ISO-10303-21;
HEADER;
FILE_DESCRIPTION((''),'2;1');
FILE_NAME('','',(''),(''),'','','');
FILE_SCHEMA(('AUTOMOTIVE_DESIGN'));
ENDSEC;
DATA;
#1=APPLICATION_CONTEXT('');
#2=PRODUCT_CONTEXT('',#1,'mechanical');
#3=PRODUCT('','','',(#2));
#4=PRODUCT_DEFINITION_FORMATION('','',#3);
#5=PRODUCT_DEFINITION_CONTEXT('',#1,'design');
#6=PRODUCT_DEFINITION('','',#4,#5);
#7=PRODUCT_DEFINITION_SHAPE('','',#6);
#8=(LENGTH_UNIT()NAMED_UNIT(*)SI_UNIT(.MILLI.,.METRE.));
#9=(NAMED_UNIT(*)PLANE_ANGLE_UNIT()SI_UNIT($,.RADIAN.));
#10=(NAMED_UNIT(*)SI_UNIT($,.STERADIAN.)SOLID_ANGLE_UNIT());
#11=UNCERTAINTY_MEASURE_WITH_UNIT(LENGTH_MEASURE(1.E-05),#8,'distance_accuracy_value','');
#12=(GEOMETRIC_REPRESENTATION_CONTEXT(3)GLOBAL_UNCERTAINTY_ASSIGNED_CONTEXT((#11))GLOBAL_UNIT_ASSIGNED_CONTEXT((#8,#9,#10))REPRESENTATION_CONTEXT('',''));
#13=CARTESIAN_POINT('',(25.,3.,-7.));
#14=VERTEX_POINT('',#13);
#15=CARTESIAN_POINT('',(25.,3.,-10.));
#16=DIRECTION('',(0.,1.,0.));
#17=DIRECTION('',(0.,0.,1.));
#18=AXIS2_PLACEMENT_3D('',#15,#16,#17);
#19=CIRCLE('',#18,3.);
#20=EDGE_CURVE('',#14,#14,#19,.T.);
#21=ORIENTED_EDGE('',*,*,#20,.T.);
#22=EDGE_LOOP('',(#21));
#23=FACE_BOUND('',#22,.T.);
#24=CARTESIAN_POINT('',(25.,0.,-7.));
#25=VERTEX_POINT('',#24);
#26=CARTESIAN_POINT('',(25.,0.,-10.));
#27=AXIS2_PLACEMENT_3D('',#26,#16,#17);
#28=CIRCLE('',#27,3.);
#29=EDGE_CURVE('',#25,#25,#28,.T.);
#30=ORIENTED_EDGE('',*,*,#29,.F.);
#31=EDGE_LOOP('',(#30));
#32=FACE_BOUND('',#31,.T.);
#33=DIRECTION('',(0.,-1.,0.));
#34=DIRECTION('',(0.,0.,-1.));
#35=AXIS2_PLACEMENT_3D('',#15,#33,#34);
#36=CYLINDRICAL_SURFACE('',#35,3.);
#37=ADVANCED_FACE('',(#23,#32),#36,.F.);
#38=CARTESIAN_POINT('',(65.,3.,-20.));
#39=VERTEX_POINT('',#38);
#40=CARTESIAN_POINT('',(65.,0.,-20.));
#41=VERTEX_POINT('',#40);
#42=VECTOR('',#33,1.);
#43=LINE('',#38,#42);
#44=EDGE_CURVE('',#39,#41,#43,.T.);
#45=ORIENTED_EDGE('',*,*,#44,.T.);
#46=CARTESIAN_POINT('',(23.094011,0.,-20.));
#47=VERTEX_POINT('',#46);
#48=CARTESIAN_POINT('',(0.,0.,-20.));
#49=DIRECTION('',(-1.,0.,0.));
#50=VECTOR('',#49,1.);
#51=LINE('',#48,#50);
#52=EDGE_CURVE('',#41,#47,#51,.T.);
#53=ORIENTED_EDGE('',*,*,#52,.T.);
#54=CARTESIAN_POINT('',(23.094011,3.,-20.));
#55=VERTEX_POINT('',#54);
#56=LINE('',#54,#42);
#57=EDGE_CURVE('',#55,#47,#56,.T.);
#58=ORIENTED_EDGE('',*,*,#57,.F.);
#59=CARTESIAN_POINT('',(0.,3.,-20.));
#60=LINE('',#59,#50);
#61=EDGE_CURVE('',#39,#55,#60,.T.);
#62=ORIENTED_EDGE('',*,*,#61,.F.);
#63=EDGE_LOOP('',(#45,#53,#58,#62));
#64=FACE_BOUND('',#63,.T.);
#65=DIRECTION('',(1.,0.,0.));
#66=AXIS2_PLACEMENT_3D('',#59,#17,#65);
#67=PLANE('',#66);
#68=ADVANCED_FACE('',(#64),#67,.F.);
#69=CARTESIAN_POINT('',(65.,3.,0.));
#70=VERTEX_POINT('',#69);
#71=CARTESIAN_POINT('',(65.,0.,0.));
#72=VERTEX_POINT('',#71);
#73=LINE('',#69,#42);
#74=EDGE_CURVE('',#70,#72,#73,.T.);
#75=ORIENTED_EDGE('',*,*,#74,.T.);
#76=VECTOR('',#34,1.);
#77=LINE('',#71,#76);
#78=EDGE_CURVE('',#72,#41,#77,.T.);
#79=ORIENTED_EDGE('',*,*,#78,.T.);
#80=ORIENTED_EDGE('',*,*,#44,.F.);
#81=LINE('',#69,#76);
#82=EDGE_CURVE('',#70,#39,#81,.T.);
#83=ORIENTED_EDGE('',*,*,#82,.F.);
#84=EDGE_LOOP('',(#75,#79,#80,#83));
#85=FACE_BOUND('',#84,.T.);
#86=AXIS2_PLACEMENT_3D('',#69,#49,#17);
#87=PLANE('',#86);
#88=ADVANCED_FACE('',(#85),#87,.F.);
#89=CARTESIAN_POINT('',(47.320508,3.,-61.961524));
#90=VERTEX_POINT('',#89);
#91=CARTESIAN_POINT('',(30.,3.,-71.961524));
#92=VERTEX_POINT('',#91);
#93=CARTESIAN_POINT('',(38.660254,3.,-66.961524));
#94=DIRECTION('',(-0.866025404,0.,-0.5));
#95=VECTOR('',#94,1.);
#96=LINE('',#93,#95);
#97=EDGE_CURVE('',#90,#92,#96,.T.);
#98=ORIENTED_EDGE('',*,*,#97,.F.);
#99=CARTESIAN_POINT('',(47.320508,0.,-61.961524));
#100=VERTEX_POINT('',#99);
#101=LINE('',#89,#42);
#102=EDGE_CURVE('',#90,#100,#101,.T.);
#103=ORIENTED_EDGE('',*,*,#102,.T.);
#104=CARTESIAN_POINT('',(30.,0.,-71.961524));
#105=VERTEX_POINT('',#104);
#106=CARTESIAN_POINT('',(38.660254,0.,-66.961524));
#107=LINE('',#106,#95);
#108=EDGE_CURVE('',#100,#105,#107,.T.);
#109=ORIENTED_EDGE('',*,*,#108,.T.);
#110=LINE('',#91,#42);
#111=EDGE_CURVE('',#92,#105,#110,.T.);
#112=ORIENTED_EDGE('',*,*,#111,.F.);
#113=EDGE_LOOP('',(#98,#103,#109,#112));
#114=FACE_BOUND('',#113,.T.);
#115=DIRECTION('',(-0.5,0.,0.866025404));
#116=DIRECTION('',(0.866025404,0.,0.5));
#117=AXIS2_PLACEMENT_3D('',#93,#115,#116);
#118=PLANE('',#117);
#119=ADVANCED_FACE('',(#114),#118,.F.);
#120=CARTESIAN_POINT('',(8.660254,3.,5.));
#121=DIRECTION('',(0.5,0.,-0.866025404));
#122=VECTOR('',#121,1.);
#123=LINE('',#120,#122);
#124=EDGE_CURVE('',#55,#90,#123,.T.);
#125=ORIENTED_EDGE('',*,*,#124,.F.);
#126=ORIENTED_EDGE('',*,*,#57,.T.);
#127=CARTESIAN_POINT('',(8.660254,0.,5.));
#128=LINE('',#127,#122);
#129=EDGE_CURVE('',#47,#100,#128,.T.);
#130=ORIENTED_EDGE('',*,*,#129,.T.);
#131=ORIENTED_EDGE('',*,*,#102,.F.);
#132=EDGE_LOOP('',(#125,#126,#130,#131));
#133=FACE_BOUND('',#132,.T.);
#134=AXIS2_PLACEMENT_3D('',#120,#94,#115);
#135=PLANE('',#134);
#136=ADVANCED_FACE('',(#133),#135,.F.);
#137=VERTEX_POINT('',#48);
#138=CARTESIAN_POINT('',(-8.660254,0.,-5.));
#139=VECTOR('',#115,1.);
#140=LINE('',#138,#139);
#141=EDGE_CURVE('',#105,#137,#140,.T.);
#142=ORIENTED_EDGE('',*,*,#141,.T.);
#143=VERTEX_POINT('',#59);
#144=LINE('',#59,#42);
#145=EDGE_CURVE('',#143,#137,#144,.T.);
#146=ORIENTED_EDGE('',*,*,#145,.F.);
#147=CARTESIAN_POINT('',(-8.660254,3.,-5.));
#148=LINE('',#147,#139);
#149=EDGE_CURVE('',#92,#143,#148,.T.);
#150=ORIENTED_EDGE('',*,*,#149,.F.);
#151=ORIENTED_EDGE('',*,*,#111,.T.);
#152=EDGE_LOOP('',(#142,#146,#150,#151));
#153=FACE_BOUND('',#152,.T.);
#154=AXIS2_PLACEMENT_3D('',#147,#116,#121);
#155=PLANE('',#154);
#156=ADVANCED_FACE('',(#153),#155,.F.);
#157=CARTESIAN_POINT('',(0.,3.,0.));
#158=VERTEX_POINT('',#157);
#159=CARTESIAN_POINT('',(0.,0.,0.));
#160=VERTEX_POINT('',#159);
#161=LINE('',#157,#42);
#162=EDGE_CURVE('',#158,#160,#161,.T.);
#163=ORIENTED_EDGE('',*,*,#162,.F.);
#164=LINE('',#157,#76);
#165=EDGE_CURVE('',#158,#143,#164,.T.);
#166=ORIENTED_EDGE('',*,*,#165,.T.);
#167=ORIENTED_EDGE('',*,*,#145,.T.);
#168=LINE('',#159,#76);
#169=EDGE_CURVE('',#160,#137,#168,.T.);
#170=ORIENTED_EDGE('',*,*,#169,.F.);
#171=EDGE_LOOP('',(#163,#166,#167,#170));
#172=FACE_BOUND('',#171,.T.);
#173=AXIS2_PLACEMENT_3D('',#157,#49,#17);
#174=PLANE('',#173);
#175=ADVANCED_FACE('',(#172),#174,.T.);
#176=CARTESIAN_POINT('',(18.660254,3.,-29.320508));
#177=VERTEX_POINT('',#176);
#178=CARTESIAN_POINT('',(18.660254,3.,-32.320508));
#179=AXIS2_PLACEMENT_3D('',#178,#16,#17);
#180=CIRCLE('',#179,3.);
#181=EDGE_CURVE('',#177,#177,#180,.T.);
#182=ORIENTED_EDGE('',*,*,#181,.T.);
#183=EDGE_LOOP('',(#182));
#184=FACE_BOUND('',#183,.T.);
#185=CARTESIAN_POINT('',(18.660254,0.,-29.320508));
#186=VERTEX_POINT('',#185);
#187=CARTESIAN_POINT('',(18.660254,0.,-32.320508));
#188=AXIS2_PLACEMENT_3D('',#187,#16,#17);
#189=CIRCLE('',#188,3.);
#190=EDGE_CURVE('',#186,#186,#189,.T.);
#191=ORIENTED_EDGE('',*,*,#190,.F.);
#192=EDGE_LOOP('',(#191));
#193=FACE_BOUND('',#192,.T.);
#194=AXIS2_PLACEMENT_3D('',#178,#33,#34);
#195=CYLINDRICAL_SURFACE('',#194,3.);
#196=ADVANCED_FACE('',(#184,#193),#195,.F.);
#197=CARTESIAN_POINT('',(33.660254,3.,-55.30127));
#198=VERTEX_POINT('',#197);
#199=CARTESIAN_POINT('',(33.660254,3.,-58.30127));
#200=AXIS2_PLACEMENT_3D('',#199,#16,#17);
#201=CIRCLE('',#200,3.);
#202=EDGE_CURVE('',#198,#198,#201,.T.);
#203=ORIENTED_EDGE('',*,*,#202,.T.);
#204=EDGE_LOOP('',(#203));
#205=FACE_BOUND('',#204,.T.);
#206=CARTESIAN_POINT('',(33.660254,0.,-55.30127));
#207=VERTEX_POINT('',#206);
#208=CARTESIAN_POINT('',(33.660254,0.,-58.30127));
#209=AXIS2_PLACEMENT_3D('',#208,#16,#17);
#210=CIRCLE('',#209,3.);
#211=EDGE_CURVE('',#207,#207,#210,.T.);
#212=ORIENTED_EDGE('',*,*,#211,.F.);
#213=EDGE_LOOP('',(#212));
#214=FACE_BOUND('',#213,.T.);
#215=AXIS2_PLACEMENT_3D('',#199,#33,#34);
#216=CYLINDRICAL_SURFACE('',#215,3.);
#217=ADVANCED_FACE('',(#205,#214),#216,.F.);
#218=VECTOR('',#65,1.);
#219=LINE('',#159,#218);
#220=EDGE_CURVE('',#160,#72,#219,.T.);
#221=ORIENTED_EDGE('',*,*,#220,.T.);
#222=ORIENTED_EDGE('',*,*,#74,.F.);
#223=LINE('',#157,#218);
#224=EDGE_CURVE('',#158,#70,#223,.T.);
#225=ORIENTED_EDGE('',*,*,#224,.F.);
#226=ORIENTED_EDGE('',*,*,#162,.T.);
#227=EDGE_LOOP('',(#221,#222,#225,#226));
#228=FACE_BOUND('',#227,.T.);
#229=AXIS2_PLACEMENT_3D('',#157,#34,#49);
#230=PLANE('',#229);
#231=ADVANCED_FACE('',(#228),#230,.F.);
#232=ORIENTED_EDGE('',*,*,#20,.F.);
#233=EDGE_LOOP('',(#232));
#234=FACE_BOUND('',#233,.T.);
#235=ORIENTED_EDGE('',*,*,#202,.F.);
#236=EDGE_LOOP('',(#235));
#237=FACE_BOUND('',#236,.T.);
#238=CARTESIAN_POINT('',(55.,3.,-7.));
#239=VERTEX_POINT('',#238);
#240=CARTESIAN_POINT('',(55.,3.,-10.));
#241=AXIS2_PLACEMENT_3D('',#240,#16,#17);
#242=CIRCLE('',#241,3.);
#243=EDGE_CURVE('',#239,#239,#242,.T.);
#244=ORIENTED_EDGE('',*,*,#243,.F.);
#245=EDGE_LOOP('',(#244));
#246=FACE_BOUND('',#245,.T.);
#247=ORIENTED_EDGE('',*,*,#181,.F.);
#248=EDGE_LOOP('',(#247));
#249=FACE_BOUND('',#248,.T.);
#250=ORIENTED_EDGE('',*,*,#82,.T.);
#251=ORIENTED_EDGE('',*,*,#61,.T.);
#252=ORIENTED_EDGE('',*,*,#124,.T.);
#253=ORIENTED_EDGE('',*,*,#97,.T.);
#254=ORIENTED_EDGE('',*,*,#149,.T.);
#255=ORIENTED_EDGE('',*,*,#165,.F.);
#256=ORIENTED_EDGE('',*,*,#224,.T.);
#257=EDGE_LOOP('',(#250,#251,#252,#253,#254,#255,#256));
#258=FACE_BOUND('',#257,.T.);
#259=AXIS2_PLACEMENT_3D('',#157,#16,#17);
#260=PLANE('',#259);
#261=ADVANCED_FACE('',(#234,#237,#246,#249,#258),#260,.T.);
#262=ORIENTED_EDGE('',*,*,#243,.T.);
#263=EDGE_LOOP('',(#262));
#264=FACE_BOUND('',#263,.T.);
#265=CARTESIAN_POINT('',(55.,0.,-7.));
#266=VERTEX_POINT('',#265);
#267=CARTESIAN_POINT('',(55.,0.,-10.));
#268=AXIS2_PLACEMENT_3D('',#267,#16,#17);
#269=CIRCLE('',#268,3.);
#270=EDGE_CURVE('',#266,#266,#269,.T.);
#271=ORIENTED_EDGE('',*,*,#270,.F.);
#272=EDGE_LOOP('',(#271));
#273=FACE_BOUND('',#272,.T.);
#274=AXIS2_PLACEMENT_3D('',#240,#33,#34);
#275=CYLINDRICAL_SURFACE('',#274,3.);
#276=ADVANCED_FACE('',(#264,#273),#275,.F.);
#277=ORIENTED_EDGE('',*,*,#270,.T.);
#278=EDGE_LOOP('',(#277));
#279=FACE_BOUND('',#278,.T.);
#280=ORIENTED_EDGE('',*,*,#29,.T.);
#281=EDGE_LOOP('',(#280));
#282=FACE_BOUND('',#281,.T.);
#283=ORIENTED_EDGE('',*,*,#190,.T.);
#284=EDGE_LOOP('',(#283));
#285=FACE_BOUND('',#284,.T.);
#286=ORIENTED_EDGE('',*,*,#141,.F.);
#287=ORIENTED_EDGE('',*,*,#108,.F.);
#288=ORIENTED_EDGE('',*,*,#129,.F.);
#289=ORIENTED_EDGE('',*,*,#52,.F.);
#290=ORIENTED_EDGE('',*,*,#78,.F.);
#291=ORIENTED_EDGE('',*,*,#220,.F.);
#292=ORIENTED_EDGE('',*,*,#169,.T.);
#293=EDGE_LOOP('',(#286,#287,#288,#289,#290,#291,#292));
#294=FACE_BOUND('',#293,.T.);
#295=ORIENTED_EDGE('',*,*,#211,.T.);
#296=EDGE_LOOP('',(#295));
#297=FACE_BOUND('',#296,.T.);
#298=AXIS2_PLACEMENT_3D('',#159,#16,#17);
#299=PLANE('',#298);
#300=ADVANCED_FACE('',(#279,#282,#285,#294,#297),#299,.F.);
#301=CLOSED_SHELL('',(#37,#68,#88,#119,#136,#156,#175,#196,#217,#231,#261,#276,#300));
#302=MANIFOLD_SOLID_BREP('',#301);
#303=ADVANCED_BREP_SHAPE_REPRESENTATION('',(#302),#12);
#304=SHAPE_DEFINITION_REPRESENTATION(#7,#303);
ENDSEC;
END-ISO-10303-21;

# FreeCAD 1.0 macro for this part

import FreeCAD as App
import Part
import Sketcher

V = App.Vector
Q = App.Units.Quantity

doc = App.newDocument("Part")
body = doc.addObject("PartDesign::Body", "Body")

sketch1 = body.newObject("Sketcher::SketchObject", "Sketch")
sketch1.AttachmentSupport = (doc.getObject("XZ_Plane"), [""])
sketch1.MapMode = "FlatFace"
sketch1.addGeometry(Part.LineSegment(V(0, -20, 0), V(0, 0, 0)), False)
sketch1.addGeometry(Part.LineSegment(V(0, 0, 0), V(65, 0, 0)), False)
sketch1.addGeometry(Part.LineSegment(V(65, 0, 0), V(65, -20, 0)), False)
sketch1.addGeometry(Part.LineSegment(V(65, -20, 0), V(23.1, -20, 0)), False)
sketch1.addGeometry(Part.LineSegment(V(23.1, -20, 0), V(47.3, -62, 0)), False)
sketch1.addGeometry(Part.LineSegment(V(47.3, -62, 0), V(30, -72, 0)), False)
sketch1.addGeometry(Part.LineSegment(V(30, -72, 0), V(0, -20, 0)), False)
sketch1.addGeometry(Part.Circle(V(55, -10, 0), V(0, 0, 1), 3), False)
sketch1.addGeometry(Part.Circle(V(25, -10, 0), V(0, 0, 1), 3), False)
sketch1.addGeometry(Part.Circle(V(18.7, -32.3, 0), V(0, 0, 1), 3), False)
sketch1.addGeometry(Part.Circle(V(33.7, -58.3, 0), V(0, 0, 1), 3), False)
sketch1.addConstraint(Sketcher.Constraint("Coincident", 0, 2, 1, 1))
sketch1.addConstraint(Sketcher.Constraint("Coincident", 1, 2, 2, 1))
sketch1.addConstraint(Sketcher.Constraint("Coincident", 2, 2, 3, 1))
sketch1.addConstraint(Sketcher.Constraint("Coincident", 3, 2, 4, 1))
sketch1.addConstraint(Sketcher.Constraint("Coincident", 4, 2, 5, 1))
sketch1.addConstraint(Sketcher.Constraint("Coincident", 5, 2, 6, 1))
sketch1.addConstraint(Sketcher.Constraint("Coincident", 6, 2, 0, 1))
sketch1.addConstraint(Sketcher.Constraint("Vertical", 0))
sketch1.addConstraint(Sketcher.Constraint("Horizontal", 1))
sketch1.addConstraint(Sketcher.Constraint("Vertical", 2))
sketch1.addConstraint(Sketcher.Constraint("Horizontal", 3))
sketch1.addConstraint(Sketcher.Constraint("Coincident", 0, 2, -1, 1))
sketch1.addConstraint(Sketcher.Constraint("Equal", 7, 8))
sketch1.addConstraint(Sketcher.Constraint("Equal", 8, 9))
sketch1.addConstraint(Sketcher.Constraint("Equal", 9, 10))
sketch1.addConstraint(Sketcher.Constraint("Perpendicular", 4, 5))
sketch1.addConstraint(Sketcher.Constraint("Perpendicular", 5, 6))
sketch1.addConstraint(Sketcher.Constraint("Horizontal", 7, 3, 8, 3))
sketch1.addConstraint(Sketcher.Constraint("Horizontal", 3, 2, 6, 2))
sketch1.addConstraint(Sketcher.Constraint("Diameter", 7, 6.0))
sketch1.addConstraint(Sketcher.Constraint("DistanceX", 1, 1, 1, 2, 65.0))
sketch1.addConstraint(Sketcher.Constraint("DistanceY", 0, 1, 0, 2, 20.0))
sketch1.addConstraint(Sketcher.Constraint("Angle", 4, Q("-60 deg")))
sketch1.addConstraint(Sketcher.Constraint("Distance", 5, 20.0))
sketch1.addConstraint(Sketcher.Constraint("Distance", 6, 60.0))
sketch1.addConstraint(Sketcher.Constraint("DistanceX", -1, 1, 7, 3, 55.0))
sketch1.addConstraint(Sketcher.Constraint("DistanceY", 7, 3, -1, 1, 10.0))
sketch1.addConstraint(Sketcher.Constraint("DistanceX", -1, 1, 8, 3, 25.0))
sketch1.addConstraint(Sketcher.Constraint("DistanceX", 9, 3, 10, 3, 15.0))
sketch1.addConstraint(Sketcher.Constraint("DistanceY", 9, 3, -1, 1, 32.320508))
sketch1.addConstraint(Sketcher.Constraint("DistanceY", 10, 3, -1, 1, 58.30127))
sketch1.addConstraint(Sketcher.Constraint("DistanceX", -1, 1, 9, 3, 18.660254))
pad1 = body.newObject("PartDesign::Pad", "Pad")
pad1.Profile = sketch1
pad1.Length = 3
pad1.Reversed = True

doc.recompute()
